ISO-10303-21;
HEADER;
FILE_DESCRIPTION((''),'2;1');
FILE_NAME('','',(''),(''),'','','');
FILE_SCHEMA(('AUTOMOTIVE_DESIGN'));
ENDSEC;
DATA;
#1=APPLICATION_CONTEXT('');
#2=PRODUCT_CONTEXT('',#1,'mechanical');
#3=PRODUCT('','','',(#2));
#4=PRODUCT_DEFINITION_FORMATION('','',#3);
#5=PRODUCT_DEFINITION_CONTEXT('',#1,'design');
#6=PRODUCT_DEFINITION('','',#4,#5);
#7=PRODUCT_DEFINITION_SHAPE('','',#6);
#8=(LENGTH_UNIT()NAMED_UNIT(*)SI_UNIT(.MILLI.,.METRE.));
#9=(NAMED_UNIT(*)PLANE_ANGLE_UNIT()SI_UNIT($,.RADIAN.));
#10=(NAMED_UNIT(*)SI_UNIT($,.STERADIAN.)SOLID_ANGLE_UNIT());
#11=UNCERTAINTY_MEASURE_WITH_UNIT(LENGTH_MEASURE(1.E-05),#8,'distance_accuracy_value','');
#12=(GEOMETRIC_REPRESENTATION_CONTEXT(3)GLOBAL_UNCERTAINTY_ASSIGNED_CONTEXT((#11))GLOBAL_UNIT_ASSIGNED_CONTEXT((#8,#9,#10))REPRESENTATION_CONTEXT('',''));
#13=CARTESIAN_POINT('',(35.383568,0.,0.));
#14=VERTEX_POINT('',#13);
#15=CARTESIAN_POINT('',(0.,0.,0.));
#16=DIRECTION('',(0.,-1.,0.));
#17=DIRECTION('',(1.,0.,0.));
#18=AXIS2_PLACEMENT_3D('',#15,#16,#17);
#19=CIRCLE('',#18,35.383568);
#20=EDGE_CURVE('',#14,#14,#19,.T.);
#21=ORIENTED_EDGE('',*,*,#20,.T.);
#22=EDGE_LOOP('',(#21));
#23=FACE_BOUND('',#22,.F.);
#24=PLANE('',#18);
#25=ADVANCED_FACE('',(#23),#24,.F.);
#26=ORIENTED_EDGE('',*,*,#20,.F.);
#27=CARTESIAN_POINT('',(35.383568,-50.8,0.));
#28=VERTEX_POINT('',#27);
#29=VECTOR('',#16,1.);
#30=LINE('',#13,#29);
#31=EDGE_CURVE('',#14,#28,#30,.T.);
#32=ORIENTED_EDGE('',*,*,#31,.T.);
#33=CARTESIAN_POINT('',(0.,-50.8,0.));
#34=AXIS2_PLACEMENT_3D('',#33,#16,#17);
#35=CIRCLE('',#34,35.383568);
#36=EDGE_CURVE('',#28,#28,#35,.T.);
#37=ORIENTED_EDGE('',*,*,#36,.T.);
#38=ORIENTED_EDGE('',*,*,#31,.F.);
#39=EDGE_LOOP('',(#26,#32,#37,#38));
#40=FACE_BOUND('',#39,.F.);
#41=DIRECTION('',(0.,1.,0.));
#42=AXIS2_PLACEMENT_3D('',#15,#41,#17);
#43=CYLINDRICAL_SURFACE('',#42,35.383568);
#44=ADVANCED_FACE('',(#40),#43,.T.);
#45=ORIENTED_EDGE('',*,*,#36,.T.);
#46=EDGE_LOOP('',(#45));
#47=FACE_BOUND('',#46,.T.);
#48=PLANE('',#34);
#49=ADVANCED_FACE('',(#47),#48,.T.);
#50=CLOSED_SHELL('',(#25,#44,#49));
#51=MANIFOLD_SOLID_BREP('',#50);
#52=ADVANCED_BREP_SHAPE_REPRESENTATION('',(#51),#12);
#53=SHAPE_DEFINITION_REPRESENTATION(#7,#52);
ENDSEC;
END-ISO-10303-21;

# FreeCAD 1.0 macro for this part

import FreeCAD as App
import Part
import Sketcher
Q = App.Units.Quantity

doc = App.newDocument("Part")
body = doc.addObject("PartDesign::Body", "Body")

# Sketch on XZ plane
sketch1 = body.newObject("Sketcher::SketchObject", "Sketch")
sketch1.AttachmentSupport = (doc.getObject("XZ_Plane"), [""])
sketch1.MapMode = "FlatFace"
sketch1.addGeometry(Part.Circle(App.Vector(0, 0, 0), App.Vector(0, 0, 1), 35.383568), False)
sketch1.addConstraint([
    Sketcher.Constraint("Coincident", 0, 3, -1, 1),
    Sketcher.Constraint("Diameter", 0, Q("70.767136 mm")),
])
pad1 = body.newObject("PartDesign::Pad", "Pad")
pad1.Profile = sketch1
pad1.Length = Q("2 in")

doc.recompute()
